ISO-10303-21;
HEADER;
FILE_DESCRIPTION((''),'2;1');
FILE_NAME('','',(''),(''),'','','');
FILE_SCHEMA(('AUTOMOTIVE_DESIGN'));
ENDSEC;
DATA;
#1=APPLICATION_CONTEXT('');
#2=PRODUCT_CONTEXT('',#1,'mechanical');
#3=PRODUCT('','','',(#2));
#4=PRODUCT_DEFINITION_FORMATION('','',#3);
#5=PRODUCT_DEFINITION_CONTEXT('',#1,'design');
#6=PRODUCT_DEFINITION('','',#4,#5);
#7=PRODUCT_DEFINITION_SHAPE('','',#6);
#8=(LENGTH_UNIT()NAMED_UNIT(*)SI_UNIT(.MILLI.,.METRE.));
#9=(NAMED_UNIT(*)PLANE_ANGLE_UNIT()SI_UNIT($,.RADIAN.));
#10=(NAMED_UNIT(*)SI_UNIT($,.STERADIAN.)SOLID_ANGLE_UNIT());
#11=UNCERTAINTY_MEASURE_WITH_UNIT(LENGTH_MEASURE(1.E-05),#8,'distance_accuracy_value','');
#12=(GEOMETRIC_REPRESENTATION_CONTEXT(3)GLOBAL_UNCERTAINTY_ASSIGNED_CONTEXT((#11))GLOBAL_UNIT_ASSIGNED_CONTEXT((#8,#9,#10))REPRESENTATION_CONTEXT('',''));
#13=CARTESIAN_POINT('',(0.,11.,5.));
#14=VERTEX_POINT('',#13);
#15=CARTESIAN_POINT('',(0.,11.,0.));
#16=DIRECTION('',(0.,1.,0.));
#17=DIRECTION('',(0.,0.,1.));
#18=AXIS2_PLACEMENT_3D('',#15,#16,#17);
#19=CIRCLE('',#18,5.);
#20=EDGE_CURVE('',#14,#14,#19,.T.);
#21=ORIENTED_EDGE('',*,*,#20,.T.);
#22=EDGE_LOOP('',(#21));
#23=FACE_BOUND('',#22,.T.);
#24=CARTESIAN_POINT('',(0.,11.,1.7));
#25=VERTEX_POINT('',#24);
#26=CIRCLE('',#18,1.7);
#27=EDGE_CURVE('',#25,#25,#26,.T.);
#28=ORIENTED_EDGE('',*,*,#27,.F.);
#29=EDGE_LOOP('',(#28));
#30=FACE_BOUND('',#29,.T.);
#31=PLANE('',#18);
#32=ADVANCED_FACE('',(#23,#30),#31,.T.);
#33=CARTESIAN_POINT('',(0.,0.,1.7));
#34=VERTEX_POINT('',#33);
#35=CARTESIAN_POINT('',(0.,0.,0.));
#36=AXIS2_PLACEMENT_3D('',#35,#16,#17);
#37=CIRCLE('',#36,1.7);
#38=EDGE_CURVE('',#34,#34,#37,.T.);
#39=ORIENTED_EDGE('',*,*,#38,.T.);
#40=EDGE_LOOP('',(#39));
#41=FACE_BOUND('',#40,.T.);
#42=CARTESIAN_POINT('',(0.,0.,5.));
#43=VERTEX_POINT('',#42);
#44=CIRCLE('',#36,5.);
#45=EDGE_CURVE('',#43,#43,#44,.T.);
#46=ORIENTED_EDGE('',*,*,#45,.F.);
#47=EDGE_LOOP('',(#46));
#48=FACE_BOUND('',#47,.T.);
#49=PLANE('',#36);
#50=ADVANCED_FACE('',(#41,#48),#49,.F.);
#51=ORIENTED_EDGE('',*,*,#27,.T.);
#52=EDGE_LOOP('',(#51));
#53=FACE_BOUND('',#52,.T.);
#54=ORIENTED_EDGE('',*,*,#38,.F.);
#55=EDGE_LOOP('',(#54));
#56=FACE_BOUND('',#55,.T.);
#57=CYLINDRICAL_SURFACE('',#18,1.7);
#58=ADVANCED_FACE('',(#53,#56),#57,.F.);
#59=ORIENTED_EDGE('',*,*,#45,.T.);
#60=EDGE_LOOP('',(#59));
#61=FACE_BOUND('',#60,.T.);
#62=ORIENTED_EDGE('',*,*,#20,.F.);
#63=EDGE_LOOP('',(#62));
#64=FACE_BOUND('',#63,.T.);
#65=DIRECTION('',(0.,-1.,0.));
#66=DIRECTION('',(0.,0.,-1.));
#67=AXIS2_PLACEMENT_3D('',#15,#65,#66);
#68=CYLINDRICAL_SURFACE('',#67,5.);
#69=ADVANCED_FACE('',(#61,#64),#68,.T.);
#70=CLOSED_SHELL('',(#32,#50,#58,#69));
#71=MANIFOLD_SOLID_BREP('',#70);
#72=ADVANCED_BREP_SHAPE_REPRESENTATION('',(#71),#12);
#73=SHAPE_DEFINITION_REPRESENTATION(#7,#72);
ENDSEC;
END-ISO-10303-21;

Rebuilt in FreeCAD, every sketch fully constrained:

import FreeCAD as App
import Part
import Sketcher
from FreeCAD import Vector

doc = App.newDocument("Part")
body = doc.addObject("PartDesign::Body", "Body")

sketch1 = body.newObject("Sketcher::SketchObject", "Sketch")
sketch1.AttachmentSupport = (doc.getObject("XZ_Plane"), [""])
sketch1.MapMode = "FlatFace"
sketch1.addGeometry(Part.Circle(Vector(0, 0, 0), Vector(0, 0, 1), 5), False)
sketch1.addConstraint([
    Sketcher.Constraint("Coincident", 0, 3, -1, 1),
    Sketcher.Constraint("Diameter", 0, 10.0),
])
pad1 = body.newObject("PartDesign::Pad", "Pad")
pad1.Profile = sketch1
pad1.Length = 11
pad1.Reversed = True

sketch2 = body.newObject("Sketcher::SketchObject", "Sketch001")
sketch2.AttachmentSupport = (doc.getObject("XZ_Plane"), [""])
sketch2.MapMode = "FlatFace"
sketch2.AttachmentOffset = App.Placement(Vector(0, 0, -11), App.Rotation())
sketch2.addGeometry(Part.Circle(Vector(0, 0, 0), Vector(0, 0, 1), 1.7), False)
sketch2.addConstraint([
    Sketcher.Constraint("Coincident", 0, 3, -1, 1),
    Sketcher.Constraint("Diameter", 0, 3.4),
])
doc.recompute()
hole = body.newObject("PartDesign::Hole", "Hole")
hole.Profile = sketch2
hole.ThreadType = "None"
hole.Diameter = 3.4
hole.DepthType = "ThroughAll"
hole.Reversed = True

doc.recompute()
